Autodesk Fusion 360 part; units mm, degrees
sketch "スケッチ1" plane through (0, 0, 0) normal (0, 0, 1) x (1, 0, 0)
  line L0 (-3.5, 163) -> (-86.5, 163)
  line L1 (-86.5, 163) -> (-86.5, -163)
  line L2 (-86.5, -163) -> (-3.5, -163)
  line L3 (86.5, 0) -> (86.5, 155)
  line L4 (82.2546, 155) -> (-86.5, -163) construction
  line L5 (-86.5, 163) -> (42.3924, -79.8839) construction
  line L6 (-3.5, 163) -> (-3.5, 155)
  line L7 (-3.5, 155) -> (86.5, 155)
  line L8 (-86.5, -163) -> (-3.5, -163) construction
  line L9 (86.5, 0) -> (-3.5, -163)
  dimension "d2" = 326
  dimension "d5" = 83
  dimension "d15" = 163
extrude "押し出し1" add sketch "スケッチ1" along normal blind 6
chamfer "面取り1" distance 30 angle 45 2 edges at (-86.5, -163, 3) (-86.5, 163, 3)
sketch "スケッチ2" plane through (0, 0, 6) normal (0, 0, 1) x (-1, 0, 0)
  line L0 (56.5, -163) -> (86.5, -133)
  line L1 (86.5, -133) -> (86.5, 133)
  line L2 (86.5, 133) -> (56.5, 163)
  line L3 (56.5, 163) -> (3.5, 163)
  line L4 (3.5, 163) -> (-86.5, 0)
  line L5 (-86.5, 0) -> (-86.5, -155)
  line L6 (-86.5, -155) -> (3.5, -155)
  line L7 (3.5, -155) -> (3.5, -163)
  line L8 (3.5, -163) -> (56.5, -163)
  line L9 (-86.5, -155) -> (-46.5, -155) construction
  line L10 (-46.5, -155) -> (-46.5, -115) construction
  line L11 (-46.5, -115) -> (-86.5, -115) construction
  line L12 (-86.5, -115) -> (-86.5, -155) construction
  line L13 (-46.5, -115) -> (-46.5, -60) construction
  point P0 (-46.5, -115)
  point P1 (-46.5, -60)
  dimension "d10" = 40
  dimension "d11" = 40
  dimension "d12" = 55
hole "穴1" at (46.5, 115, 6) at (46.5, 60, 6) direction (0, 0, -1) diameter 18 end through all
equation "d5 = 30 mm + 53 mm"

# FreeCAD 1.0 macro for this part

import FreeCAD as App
import Part
import Sketcher

V = App.Vector
Q = App.Units.Quantity


def edges_at(feature, points):
    """Names of the edges that pass closest to the given points."""
    edges = feature.Shape.Edges
    near = lambda p: min(range(len(edges)), key=lambda i: edges[i].distToShape(Part.Vertex(*p))[0])
    return sorted({f"Edge{near(p) + 1}" for p in points})

doc = App.newDocument("Part")
params = doc.addObject("Spreadsheet::Sheet", "Params")
for row, (alias, value) in enumerate([
    ("sketch1_width", "83 mm"),
    ("sketch1_height", "326 mm"),
    ("sketch1_width2", "90 mm"),
    ("sketch1_height2", "8 mm"),
    ("pad1_length", "6 mm"),
    ("chamfer_size", "30 mm"),
    ("sketch2_diameter", "18 mm"),
    ("hole_diameter", "18 mm"),
], start=1):
    params.set(f"A{row}", alias)
    params.set(f"B{row}", "=" + value)
    params.setAlias(f"B{row}", alias)

body = doc.addObject("PartDesign::Body", "Body")

sketch1 = body.newObject("Sketcher::SketchObject", "Sketch")
sketch1.AttachmentSupport = (doc.getObject("XY_Plane"), [""])
sketch1.MapMode = "FlatFace"
sketch1.addGeometry([
    Part.LineSegment(V(-4, 155, 0), V(-4, 163, 0)),
    Part.LineSegment(V(-4, 163, 0), V(-86, 163, 0)),
    Part.LineSegment(V(-86, 163, 0), V(-86, -163, 0)),
    Part.LineSegment(V(-86, -163, 0), V(-4, -163, 0)),
    Part.LineSegment(V(-4, -163, 0), V(86, 0, 0)),
    Part.LineSegment(V(86, 0, 0), V(86, 155, 0)),
    Part.LineSegment(V(86, 155, 0), V(-4, 155, 0)),
], False)
sketch1.addConstraint([
    Sketcher.Constraint("Coincident", 0, 2, 1, 1),
    Sketcher.Constraint("Coincident", 1, 2, 2, 1),
    Sketcher.Constraint("Coincident", 2, 2, 3, 1),
    Sketcher.Constraint("Coincident", 3, 2, 4, 1),
    Sketcher.Constraint("Coincident", 4, 2, 5, 1),
    Sketcher.Constraint("Coincident", 5, 2, 6, 1),
    Sketcher.Constraint("Coincident", 6, 2, 0, 1),
    Sketcher.Constraint("Vertical", 0),
    Sketcher.Constraint("Horizontal", 1),
    Sketcher.Constraint("Vertical", 2),
    Sketcher.Constraint("Horizontal", 3),
    Sketcher.Constraint("Vertical", 5),
    Sketcher.Constraint("Horizontal", 6),
    Sketcher.Constraint("Symmetric", 0, 2, 3, 2, -1),
    Sketcher.Constraint("PointOnObject", 4, 2, -1),
    Sketcher.Constraint("DistanceX", 1, 2, 1, 1, Q("83 mm")),
    Sketcher.Constraint("DistanceY", 2, 2, 2, 1, Q("326 mm")),
    Sketcher.Constraint("DistanceX", 6, 2, 6, 1, Q("90 mm")),
    Sketcher.Constraint("DistanceY", 0, 1, 0, 2, Q("8 mm")),
    Sketcher.Constraint("DistanceX", 0, 2, -1, 1, Q("3.5 mm")),
])
sketch1.setExpression("Constraints[15]", "Params.sketch1_width")
sketch1.setExpression("Constraints[16]", "Params.sketch1_height")
sketch1.setExpression("Constraints[17]", "Params.sketch1_width2")
sketch1.setExpression("Constraints[18]", "Params.sketch1_height2")
pad1 = body.newObject("PartDesign::Pad", "Pad")
pad1.Profile = sketch1
pad1.setExpression("Length", "Params.pad1_length")
doc.recompute()

chamfer = body.newObject("PartDesign::Chamfer", "Chamfer")
chamfer.Base = (pad1, edges_at(pad1, [(-86.5, -163, 3), (-86.5, 163, 3)]))
chamfer.setExpression("Size", "Params.chamfer_size")

sketch2 = body.newObject("Sketcher::SketchObject", "Sketch001")
sketch2.AttachmentSupport = (doc.getObject("XY_Plane"), [""])
sketch2.MapMode = "FlatFace"
sketch2.AttachmentOffset = App.Placement(V(0, 0, 6), App.Rotation())
sketch2.addGeometry([
    Part.Circle(V(46, 115, 0), V(0, 0, 1), 9),
    Part.Circle(V(46, 60, 0), V(0, 0, 1), 9),
], False)
sketch2.addConstraint([
    Sketcher.Constraint("Equal", 0, 1),
    Sketcher.Constraint("Vertical", 0, 3, 1, 3),
    Sketcher.Constraint("Diameter", 0, Q("18 mm")),
    Sketcher.Constraint("DistanceY", -1, 1, 0, 3, Q("115 mm")),
    Sketcher.Constraint("DistanceY", -1, 1, 1, 3, Q("60 mm")),
    Sketcher.Constraint("DistanceX", -1, 1, 0, 3, Q("46.5 mm")),
])
sketch2.setExpression("Constraints[2]", "Params.sketch2_diameter")
doc.recompute()
hole = body.newObject("PartDesign::Hole", "Hole")
hole.Profile = sketch2
hole.ThreadType = "None"
hole.setExpression("Diameter", "Params.hole_diameter")
hole.DepthType = "ThroughAll"

doc.recompute()
